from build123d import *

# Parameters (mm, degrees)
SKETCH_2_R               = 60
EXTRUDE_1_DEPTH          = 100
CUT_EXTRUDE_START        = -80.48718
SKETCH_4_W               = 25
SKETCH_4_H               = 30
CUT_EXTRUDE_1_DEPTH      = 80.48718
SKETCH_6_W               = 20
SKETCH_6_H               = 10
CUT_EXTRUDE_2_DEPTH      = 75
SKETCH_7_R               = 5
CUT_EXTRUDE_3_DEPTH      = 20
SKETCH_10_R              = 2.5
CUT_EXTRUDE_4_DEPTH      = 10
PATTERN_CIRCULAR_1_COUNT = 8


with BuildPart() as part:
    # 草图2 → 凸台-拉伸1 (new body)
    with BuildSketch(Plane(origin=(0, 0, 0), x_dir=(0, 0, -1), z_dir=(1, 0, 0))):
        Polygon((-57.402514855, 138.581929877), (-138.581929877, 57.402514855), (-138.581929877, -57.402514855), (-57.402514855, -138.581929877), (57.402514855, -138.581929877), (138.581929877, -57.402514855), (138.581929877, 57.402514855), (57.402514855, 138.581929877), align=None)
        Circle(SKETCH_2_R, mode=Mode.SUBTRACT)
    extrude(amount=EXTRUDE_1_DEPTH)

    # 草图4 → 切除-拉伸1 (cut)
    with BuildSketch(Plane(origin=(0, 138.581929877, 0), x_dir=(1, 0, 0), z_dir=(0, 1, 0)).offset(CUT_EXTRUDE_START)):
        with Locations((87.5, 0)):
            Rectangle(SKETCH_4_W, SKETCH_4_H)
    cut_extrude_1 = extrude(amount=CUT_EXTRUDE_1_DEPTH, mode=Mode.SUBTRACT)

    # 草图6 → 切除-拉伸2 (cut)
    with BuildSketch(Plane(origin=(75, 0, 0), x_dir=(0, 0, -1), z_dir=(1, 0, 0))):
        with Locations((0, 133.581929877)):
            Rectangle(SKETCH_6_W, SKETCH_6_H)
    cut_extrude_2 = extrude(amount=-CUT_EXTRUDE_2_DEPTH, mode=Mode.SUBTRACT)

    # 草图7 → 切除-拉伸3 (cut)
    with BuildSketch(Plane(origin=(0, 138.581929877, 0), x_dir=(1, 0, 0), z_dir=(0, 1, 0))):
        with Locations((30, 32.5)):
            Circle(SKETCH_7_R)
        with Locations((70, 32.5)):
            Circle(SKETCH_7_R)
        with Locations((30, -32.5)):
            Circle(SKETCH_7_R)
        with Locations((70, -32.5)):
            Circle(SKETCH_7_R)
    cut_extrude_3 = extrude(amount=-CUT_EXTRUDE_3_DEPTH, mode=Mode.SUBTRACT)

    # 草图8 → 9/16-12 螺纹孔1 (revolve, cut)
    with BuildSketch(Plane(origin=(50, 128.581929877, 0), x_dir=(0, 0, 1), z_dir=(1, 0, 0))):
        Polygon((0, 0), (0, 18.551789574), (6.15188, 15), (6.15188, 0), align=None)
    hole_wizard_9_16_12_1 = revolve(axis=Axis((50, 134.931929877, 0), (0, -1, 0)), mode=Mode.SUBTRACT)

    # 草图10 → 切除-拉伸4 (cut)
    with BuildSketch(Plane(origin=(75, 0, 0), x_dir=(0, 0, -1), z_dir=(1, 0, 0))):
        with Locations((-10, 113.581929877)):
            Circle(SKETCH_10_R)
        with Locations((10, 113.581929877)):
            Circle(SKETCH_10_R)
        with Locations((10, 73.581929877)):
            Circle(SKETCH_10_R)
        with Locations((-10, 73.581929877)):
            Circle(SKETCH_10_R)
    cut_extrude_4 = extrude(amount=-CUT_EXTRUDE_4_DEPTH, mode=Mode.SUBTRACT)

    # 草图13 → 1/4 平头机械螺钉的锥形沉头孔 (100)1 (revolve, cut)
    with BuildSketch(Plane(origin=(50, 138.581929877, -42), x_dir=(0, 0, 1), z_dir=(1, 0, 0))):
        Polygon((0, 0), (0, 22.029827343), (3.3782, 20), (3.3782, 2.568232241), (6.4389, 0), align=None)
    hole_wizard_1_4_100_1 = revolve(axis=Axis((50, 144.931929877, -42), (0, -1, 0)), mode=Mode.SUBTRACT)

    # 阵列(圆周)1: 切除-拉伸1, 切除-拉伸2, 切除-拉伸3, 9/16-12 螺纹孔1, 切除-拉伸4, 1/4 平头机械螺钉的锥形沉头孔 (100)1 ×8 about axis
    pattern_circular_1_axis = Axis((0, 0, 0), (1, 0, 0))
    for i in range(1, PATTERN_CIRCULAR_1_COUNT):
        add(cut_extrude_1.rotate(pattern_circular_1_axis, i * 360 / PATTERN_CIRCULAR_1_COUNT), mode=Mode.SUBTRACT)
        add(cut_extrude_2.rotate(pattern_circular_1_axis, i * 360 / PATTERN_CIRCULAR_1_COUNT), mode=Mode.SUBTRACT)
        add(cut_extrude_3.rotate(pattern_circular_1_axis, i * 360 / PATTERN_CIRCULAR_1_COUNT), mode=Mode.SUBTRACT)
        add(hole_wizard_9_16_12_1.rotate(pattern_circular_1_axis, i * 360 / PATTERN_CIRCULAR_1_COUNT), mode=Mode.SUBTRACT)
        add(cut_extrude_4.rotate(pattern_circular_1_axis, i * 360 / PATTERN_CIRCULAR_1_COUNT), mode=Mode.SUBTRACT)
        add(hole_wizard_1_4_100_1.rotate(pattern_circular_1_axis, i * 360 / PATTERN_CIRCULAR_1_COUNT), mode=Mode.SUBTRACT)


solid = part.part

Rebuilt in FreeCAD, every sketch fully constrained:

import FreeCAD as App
import Part
import Sketcher
from FreeCAD import Vector
Q = App.Units.Quantity

doc = App.newDocument("Part")
body = doc.addObject("PartDesign::Body", "Body")

sketch1 = doc.addObject("Sketcher::SketchObject", "Sketch")
body.addObject(sketch1)
sketch1.AttachmentSupport = (doc.YZ_Plane, [""])
sketch1.MapMode = "FlatFace"
sketch1.addGeometry([
    Part.LineSegment(Vector(138.58193, 57.402515, 0), Vector(57.402515, 138.58193, 0)),
    Part.LineSegment(Vector(57.402515, 138.58193, 0), Vector(-57.402515, 138.58193, 0)),
    Part.LineSegment(Vector(-57.402515, 138.58193, 0), Vector(-138.58193, 57.402515, 0)),
    Part.LineSegment(Vector(-138.58193, 57.402515, 0), Vector(-138.58193, -57.402515, 0)),
    Part.LineSegment(Vector(-138.58193, -57.402515, 0), Vector(-57.402515, -138.58193, 0)),
    Part.LineSegment(Vector(-57.402515, -138.58193, 0), Vector(57.402515, -138.58193, 0)),
    Part.LineSegment(Vector(57.402515, -138.58193, 0), Vector(138.58193, -57.402515, 0)),
    Part.LineSegment(Vector(138.58193, -57.402515, 0), Vector(138.58193, 57.402515, 0)),
    Part.Circle(Vector(0, 0, 0), Vector(0, 0, 1), 60),
], False)
sketch1.addConstraint([
    Sketcher.Constraint("Coincident", 0, 2, 1, 1),
    Sketcher.Constraint("Coincident", 1, 2, 2, 1),
    Sketcher.Constraint("Coincident", 2, 2, 3, 1),
    Sketcher.Constraint("Coincident", 3, 2, 4, 1),
    Sketcher.Constraint("Coincident", 4, 2, 5, 1),
    Sketcher.Constraint("Coincident", 5, 2, 6, 1),
    Sketcher.Constraint("Coincident", 6, 2, 7, 1),
    Sketcher.Constraint("Coincident", 7, 2, 0, 1),
    Sketcher.Constraint("Horizontal", 1),
    Sketcher.Constraint("Vertical", 3),
    Sketcher.Constraint("Horizontal", 5),
    Sketcher.Constraint("Vertical", 7),
    Sketcher.Constraint("Coincident", 8, 3, -1, 1),
    Sketcher.Constraint("Symmetric", 0, 2, 4, 2, -1, 1),
    Sketcher.Constraint("Symmetric", 2, 2, 6, 2, -1, 1),
    Sketcher.Constraint("Perpendicular", 0, 2),
    Sketcher.Constraint("Perpendicular", 2, 4),
    Sketcher.Constraint("Perpendicular", 4, 6),
    Sketcher.Constraint("Horizontal", 3, 2, 6, 2),
    Sketcher.Constraint("Vertical", 1, 2, 4, 2),
    Sketcher.Constraint("Equal", 5, 3),
    Sketcher.Constraint("Diameter", 8, Q("120 mm")),
    Sketcher.Constraint("DistanceX", 1, 2, 1, 1, Q("114.80503 mm")),
    Sketcher.Constraint("Distance", 0, Q("114.80503 mm")),
])
pad1 = doc.addObject("PartDesign::Pad", "Pad")
body.addObject(pad1)
pad1.Profile = sketch1
pad1.Length = 100

sketch2 = doc.addObject("Sketcher::SketchObject", "Sketch001")
body.addObject(sketch2)
sketch2.AttachmentSupport = (doc.XZ_Plane, [""])
sketch2.MapMode = "FlatFace"
sketch2.AttachmentOffset = App.Placement(Vector(0, 0, -58.09475), App.Rotation())
sketch2.addGeometry([
    Part.LineSegment(Vector(75, -15, 0), Vector(75, 15, 0)),
    Part.LineSegment(Vector(75, 15, 0), Vector(100, 15, 0)),
    Part.LineSegment(Vector(100, 15, 0), Vector(100, -15, 0)),
    Part.LineSegment(Vector(100, -15, 0), Vector(75, -15, 0)),
], False)
sketch2.addConstraint([
    Sketcher.Constraint("Coincident", 0, 2, 1, 1),
    Sketcher.Constraint("Coincident", 1, 2, 2, 1),
    Sketcher.Constraint("Coincident", 2, 2, 3, 1),
    Sketcher.Constraint("Coincident", 3, 2, 0, 1),
    Sketcher.Constraint("Vertical", 0),
    Sketcher.Constraint("Horizontal", 1),
    Sketcher.Constraint("Vertical", 2),
    Sketcher.Constraint("Horizontal", 3),
    Sketcher.Constraint("DistanceX", 1, 1, 1, 2, Q("25 mm")),
    Sketcher.Constraint("DistanceY", 0, 1, 0, 2, Q("30 mm")),
    Sketcher.Constraint("DistanceX", -1, 1, 0, 2, Q("75 mm")),
    Sketcher.Constraint("DistanceY", -1, 1, 0, 2, Q("15 mm")),
])
pocket1 = doc.addObject("PartDesign::Pocket", "Pocket")
body.addObject(pocket1)
pocket1.Profile = sketch2
pocket1.Length = 80.48718

sketch3 = doc.addObject("Sketcher::SketchObject", "Sketch002")
body.addObject(sketch3)
sketch3.AttachmentSupport = (doc.YZ_Plane, [""])
sketch3.MapMode = "FlatFace"
sketch3.AttachmentOffset = App.Placement(Vector(0, 0, 75), App.Rotation())
sketch3.addGeometry([
    Part.LineSegment(Vector(138.58193, 10, 0), Vector(128.58193, 10, 0)),
    Part.LineSegment(Vector(128.58193, 10, 0), Vector(128.58193, -10, 0)),
    Part.LineSegment(Vector(128.58193, -10, 0), Vector(138.58193, -10, 0)),
    Part.LineSegment(Vector(138.58193, -10, 0), Vector(138.58193, 10, 0)),
], False)
sketch3.addConstraint([
    Sketcher.Constraint("Coincident", 0, 2, 1, 1),
    Sketcher.Constraint("Coincident", 1, 2, 2, 1),
    Sketcher.Constraint("Coincident", 2, 2, 3, 1),
    Sketcher.Constraint("Coincident", 3, 2, 0, 1),
    Sketcher.Constraint("Horizontal", 0),
    Sketcher.Constraint("Vertical", 1),
    Sketcher.Constraint("Horizontal", 2),
    Sketcher.Constraint("Vertical", 3),
    Sketcher.Constraint("DistanceX", 0, 2, 0, 1, Q("10 mm")),
    Sketcher.Constraint("DistanceY", 1, 2, 1, 1, Q("20 mm")),
    Sketcher.Constraint("DistanceY", -1, 1, 0, 2, Q("10 mm")),
    Sketcher.Constraint("DistanceX", -1, 1, 0, 2, Q("128.58193 mm")),
])
pocket2 = doc.addObject("PartDesign::Pocket", "Pocket001")
body.addObject(pocket2)
pocket2.Profile = sketch3
pocket2.Length = 75

sketch4 = doc.addObject("Sketcher::SketchObject", "Sketch003")
body.addObject(sketch4)
sketch4.AttachmentSupport = (doc.XZ_Plane, [""])
sketch4.MapMode = "FlatFace"
sketch4.AttachmentOffset = App.Placement(Vector(0, 0, -138.58193), App.Rotation())
sketch4.addGeometry([
    Part.Circle(Vector(30, -32.5, 0), Vector(0, 0, 1), 5),
    Part.Circle(Vector(70, -32.5, 0), Vector(0, 0, 1), 5),
    Part.Circle(Vector(30, 32.5, 0), Vector(0, 0, 1), 5),
    Part.Circle(Vector(70, 32.5, 0), Vector(0, 0, 1), 5),
], False)
sketch4.addConstraint([
    Sketcher.Constraint("Equal", 0, 1),
    Sketcher.Constraint("Equal", 1, 2),
    Sketcher.Constraint("Equal", 2, 3),
    Sketcher.Constraint("Symmetric", 0, 3, 2, 3, -1),
    Sketcher.Constraint("Symmetric", 1, 3, 3, 3, -1),
    Sketcher.Constraint("Horizontal", 0, 3, 1, 3),
    Sketcher.Constraint("Diameter", 0, Q("10 mm")),
    Sketcher.Constraint("DistanceX", -1, 1, 0, 3, Q("30 mm")),
    Sketcher.Constraint("DistanceX", -1, 1, 1, 3, Q("70 mm")),
    Sketcher.Constraint("DistanceY", 0, 3, 2, 3, Q("65 mm")),
])
pocket3 = doc.addObject("PartDesign::Pocket", "Pocket002")
body.addObject(pocket3)
pocket3.Profile = sketch4
pocket3.Length = 20
pocket3.Reversed = True

sketch5 = doc.addObject("Sketcher::SketchObject", "Sketch004")
body.addObject(sketch5)
sketch5.AttachmentSupport = (doc.YZ_Plane, [""])
sketch5.MapMode = "FlatFace"
sketch5.AttachmentOffset = App.Placement(Vector(0, 0, 50), App.Rotation())
sketch5.addGeometry([
    Part.LineSegment(Vector(110.03014, 0, 0), Vector(128.58193, 0, 0)),
    Part.LineSegment(Vector(128.58193, 0, 0), Vector(128.58193, 6.15188, 0)),
    Part.LineSegment(Vector(128.58193, 6.15188, 0), Vector(113.58193, 6.15188, 0)),
    Part.LineSegment(Vector(113.58193, 6.15188, 0), Vector(110.03014, 0, 0)),
], False)
sketch5.addConstraint([
    Sketcher.Constraint("Coincident", 0, 2, 1, 1),
    Sketcher.Constraint("Coincident", 1, 2, 2, 1),
    Sketcher.Constraint("Coincident", 2, 2, 3, 1),
    Sketcher.Constraint("Coincident", 3, 2, 0, 1),
    Sketcher.Constraint("Horizontal", 0),
    Sketcher.Constraint("Vertical", 1),
    Sketcher.Constraint("Horizontal", 2),
    Sketcher.Constraint("PointOnObject", 0, 2, -1),
    Sketcher.Constraint("DistanceX", 2, 2, 2, 1, Q("15 mm")),
    Sketcher.Constraint("Angle", 3, Q("-120 deg")),
    Sketcher.Constraint("DistanceX", 0, 1, 0, 2, Q("18.55179 mm")),
    Sketcher.Constraint("DistanceX", -1, 1, 0, 2, Q("128.58193 mm")),
])
groove = doc.addObject("PartDesign::Groove", "Groove")
body.addObject(groove)
groove.Profile = sketch5
groove.ReferenceAxis = (sketch5, ["H_Axis"])
groove.Angle = 360

sketch6 = doc.addObject("Sketcher::SketchObject", "Sketch005")
body.addObject(sketch6)
sketch6.AttachmentSupport = (doc.YZ_Plane, [""])
sketch6.MapMode = "FlatFace"
sketch6.AttachmentOffset = App.Placement(Vector(0, 0, 75), App.Rotation())
sketch6.addGeometry([
    Part.Circle(Vector(113.58193, 10, 0), Vector(0, 0, 1), 2.5),
    Part.Circle(Vector(113.58193, -10, 0), Vector(0, 0, 1), 2.5),
    Part.Circle(Vector(73.58193, -10, 0), Vector(0, 0, 1), 2.5),
    Part.Circle(Vector(73.58193, 10, 0), Vector(0, 0, 1), 2.5),
], False)
sketch6.addConstraint([
    Sketcher.Constraint("Equal", 0, 1),
    Sketcher.Constraint("Equal", 1, 2),
    Sketcher.Constraint("Equal", 2, 3),
    Sketcher.Constraint("Symmetric", 0, 3, 1, 3, -1),
    Sketcher.Constraint("Symmetric", 2, 3, 3, 3, -1),
    Sketcher.Constraint("Horizontal", 1, 3, 2, 3),
    Sketcher.Constraint("Diameter", 0, Q("5 mm")),
    Sketcher.Constraint("DistanceY", -1, 1, 0, 3, Q("10 mm")),
    Sketcher.Constraint("DistanceX", 2, 3, 1, 3, Q("40 mm")),
    Sketcher.Constraint("DistanceX", -1, 1, 0, 3, Q("113.58193 mm")),
])
pocket4 = doc.addObject("PartDesign::Pocket", "Pocket003")
body.addObject(pocket4)
pocket4.Profile = sketch6
pocket4.Length = 10

sketch7 = doc.addObject("Sketcher::SketchObject", "Sketch006")
body.addObject(sketch7)
sketch7.AttachmentSupport = (doc.YZ_Plane, [""])
sketch7.MapMode = "FlatFace"
sketch7.AttachmentOffset = App.Placement(Vector(0, 0, 50), App.Rotation())
sketch7.addGeometry([
    Part.LineSegment(Vector(116.552103, -42, 0), Vector(138.58193, -42, 0)),
    Part.LineSegment(Vector(138.58193, -42, 0), Vector(138.58193, -35.5611, 0)),
    Part.LineSegment(Vector(138.58193, -35.5611, 0), Vector(136.013698, -38.6218, 0)),
    Part.LineSegment(Vector(136.013698, -38.6218, 0), Vector(118.58193, -38.6218, 0)),
    Part.LineSegment(Vector(118.58193, -38.6218, 0), Vector(116.552103, -42, 0)),
], False)
sketch7.addGeometry(Part.LineSegment(Vector(138.58193, -42, 0), Vector(116.552103, -42, 0)), True)
sketch7.addConstraint([
    Sketcher.Constraint("Coincident", 0, 2, 1, 1),
    Sketcher.Constraint("Coincident", 1, 2, 2, 1),
    Sketcher.Constraint("Coincident", 2, 2, 3, 1),
    Sketcher.Constraint("Coincident", 3, 2, 4, 1),
    Sketcher.Constraint("Coincident", 4, 2, 0, 1),
    Sketcher.Constraint("Horizontal", 0),
    Sketcher.Constraint("Vertical", 1),
    Sketcher.Constraint("Horizontal", 3),
    Sketcher.Constraint("Horizontal", 5),
    Sketcher.Constraint("Coincident", 5, 1, 0, 2),
    Sketcher.Constraint("Equal", 0, 5),
    Sketcher.Constraint("Angle", 2, Q("-130 deg")),
    Sketcher.Constraint("Angle", 4, Q("-121 deg")),
    Sketcher.Constraint("DistanceY", 0, 2, -1, 1, Q("42 mm")),
    Sketcher.Constraint("DistanceX", 3, 2, 1, 2, Q("20 mm")),
    Sketcher.Constraint("DistanceY", 1, 1, 1, 2, Q("6.4389 mm")),
    Sketcher.Constraint("DistanceY", 2, 2, -1, 1, Q("38.6218 mm")),
    Sketcher.Constraint("DistanceX", -1, 1, 0, 2, Q("138.58193 mm")),
])
groove2 = doc.addObject("PartDesign::Groove", "Groove001")
body.addObject(groove2)
groove2.Profile = sketch7
groove2.ReferenceAxis = (sketch7, ["Axis0"])
groove2.Angle = 360
doc.recompute()

polarpattern = doc.addObject("PartDesign::PolarPattern", "PolarPattern")
body.addObject(polarpattern)
polarpattern.Originals = [pocket1, pocket2, pocket3, groove, pocket4, groove2]
polarpattern.Axis = (doc.X_Axis, [""])
polarpattern.Angle = 360
polarpattern.Occurrences = 8
body.Tip = polarpattern

doc.recompute()
